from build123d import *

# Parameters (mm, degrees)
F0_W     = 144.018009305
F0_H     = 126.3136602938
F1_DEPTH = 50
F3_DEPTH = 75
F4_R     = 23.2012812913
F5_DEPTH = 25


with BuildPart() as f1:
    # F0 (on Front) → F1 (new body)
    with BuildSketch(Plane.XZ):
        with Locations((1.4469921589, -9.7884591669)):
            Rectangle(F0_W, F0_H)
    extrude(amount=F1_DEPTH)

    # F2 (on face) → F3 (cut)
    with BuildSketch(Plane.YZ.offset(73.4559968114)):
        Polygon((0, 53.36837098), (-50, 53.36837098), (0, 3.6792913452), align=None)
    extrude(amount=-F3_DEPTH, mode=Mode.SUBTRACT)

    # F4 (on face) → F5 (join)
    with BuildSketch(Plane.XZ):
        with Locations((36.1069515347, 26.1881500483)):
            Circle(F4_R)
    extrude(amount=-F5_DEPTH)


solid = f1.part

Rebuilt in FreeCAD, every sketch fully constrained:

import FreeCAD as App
import Part
import Sketcher

V = App.Vector
Q = App.Units.Quantity

doc = App.newDocument("Part")
params = doc.addObject("Spreadsheet::Sheet", "Params")
for row, (alias, value) in enumerate([
    ("pad1_length", "50 mm"),
    ("sketch2_width", "50 mm"),
    ("pocket1_length", "75 mm"),
    ("pad2_length", "25 mm"),
], start=1):
    params.set(f"A{row}", alias)
    params.set(f"B{row}", "=" + value)
    params.setAlias(f"B{row}", alias)

body = doc.addObject("PartDesign::Body", "Body")

# Sketch on XZ plane
sketch1 = body.newObject("Sketcher::SketchObject", "Sketch")
sketch1.AttachmentSupport = (doc.getObject("XZ_Plane"), [""])
sketch1.MapMode = "FlatFace"
sketch1.addGeometry([
    Part.LineSegment(V(-71, 53, 0), V(-71, -73, 0)),
    Part.LineSegment(V(-71, -73, 0), V(73, -73, 0)),
    Part.LineSegment(V(73, -73, 0), V(73, 53, 0)),
    Part.LineSegment(V(73, 53, 0), V(-71, 53, 0)),
], False)
sketch1.addConstraint([
    Sketcher.Constraint("Coincident", 0, 2, 1, 1),
    Sketcher.Constraint("Coincident", 1, 2, 2, 1),
    Sketcher.Constraint("Coincident", 2, 2, 3, 1),
    Sketcher.Constraint("Coincident", 3, 2, 0, 1),
    Sketcher.Constraint("Vertical", 0),
    Sketcher.Constraint("Horizontal", 1),
    Sketcher.Constraint("Vertical", 2),
    Sketcher.Constraint("Horizontal", 3),
    Sketcher.Constraint("DistanceX", 1, 1, 1, 2, Q("144.018009 mm")),
    Sketcher.Constraint("DistanceY", 0, 2, 0, 1, Q("126.31366 mm")),
    Sketcher.Constraint("DistanceY", 0, 2, -1, 1, Q("72.945289 mm")),
    Sketcher.Constraint("DistanceX", 0, 2, -1, 1, Q("70.562012 mm")),
])
pad1 = body.newObject("PartDesign::Pad", "Pad")
pad1.Profile = sketch1
pad1.setExpression("Length", "Params.pad1_length")

# Sketch on YZ plane
sketch2 = body.newObject("Sketcher::SketchObject", "Sketch001")
sketch2.AttachmentSupport = (doc.getObject("YZ_Plane"), [""])
sketch2.MapMode = "FlatFace"
sketch2.AttachmentOffset = App.Placement(V(0, 0, 73.455997), App.Rotation())
sketch2.addGeometry([
    Part.LineSegment(V(0, 53, 0), V(-50, 53, 0)),
    Part.LineSegment(V(-50, 53, 0), V(0, 4, 0)),
    Part.LineSegment(V(0, 4, 0), V(0, 53, 0)),
], False)
sketch2.addConstraint([
    Sketcher.Constraint("Coincident", 0, 2, 1, 1),
    Sketcher.Constraint("Coincident", 1, 2, 2, 1),
    Sketcher.Constraint("Coincident", 2, 2, 0, 1),
    Sketcher.Constraint("Horizontal", 0),
    Sketcher.Constraint("Vertical", 2),
    Sketcher.Constraint("PointOnObject", 1, 2, -2),
    Sketcher.Constraint("DistanceX", 0, 2, 0, 1, Q("50 mm")),
    Sketcher.Constraint("DistanceY", 2, 1, 2, 2, Q("49.68908 mm")),
    Sketcher.Constraint("DistanceY", -1, 1, 0, 2, Q("53.368371 mm")),
])
sketch2.setExpression("Constraints[6]", "Params.sketch2_width")
pocket1 = body.newObject("PartDesign::Pocket", "Pocket")
pocket1.Profile = sketch2
pocket1.setExpression("Length", "Params.pocket1_length")

# Sketch on XZ plane
sketch3 = body.newObject("Sketcher::SketchObject", "Sketch002")
sketch3.AttachmentSupport = (doc.getObject("XZ_Plane"), [""])
sketch3.MapMode = "FlatFace"
sketch3.addGeometry(Part.Circle(V(36, 26, 0), V(0, 0, 1), 23), False)
sketch3.addConstraint([
    Sketcher.Constraint("Diameter", 0, Q("46.402563 mm")),
    Sketcher.Constraint("DistanceX", -1, 1, 0, 3, Q("36.106952 mm")),
    Sketcher.Constraint("DistanceY", -1, 1, 0, 3, Q("26.18815 mm")),
])
pad2 = body.newObject("PartDesign::Pad", "Pad001")
pad2.Profile = sketch3
pad2.setExpression("Length", "Params.pad2_length")
pad2.Reversed = True

doc.recompute()
